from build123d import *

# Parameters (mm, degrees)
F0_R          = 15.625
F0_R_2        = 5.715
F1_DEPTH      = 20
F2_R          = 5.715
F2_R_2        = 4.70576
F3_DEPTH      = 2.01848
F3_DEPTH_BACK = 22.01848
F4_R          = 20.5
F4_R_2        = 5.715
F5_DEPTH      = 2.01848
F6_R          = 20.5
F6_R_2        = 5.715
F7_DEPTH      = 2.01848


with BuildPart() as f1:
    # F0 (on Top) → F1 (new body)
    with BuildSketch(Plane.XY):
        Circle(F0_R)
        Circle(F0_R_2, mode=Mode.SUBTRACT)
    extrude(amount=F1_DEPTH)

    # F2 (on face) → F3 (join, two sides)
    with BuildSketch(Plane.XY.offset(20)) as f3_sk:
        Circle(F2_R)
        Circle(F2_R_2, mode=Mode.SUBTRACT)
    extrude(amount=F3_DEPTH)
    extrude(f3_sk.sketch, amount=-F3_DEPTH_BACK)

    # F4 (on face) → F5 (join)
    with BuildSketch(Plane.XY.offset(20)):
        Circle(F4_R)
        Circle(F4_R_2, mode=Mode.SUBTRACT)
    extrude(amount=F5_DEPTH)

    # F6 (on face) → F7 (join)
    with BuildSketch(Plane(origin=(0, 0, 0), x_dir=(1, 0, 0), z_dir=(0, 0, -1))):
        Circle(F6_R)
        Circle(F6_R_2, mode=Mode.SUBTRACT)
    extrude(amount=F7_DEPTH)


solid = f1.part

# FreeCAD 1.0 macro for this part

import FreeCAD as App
import Part
import Sketcher

doc = App.newDocument("Part")
body = doc.addObject("PartDesign::Body", "Body")

# Sketch on XY plane
sketch1 = body.newObject("Sketcher::SketchObject", "Sketch")
sketch1.AttachmentSupport = (doc.getObject("XY_Plane"), [""])
sketch1.MapMode = "FlatFace"
sketch1.addGeometry(Part.Circle(App.Vector(0, 0, 0), App.Vector(0, 0, 1), 15.625), False)
sketch1.addGeometry(Part.Circle(App.Vector(0, 0, 0), App.Vector(0, 0, 1), 5.715), False)
sketch1.addConstraint(Sketcher.Constraint("Coincident", 0, 3, -1, 1))
sketch1.addConstraint(Sketcher.Constraint("Coincident", 1, 3, -1, 1))
sketch1.addConstraint(Sketcher.Constraint("Diameter", 0, 31.25))
sketch1.addConstraint(Sketcher.Constraint("Diameter", 1, 11.43))
pad1 = body.newObject("PartDesign::Pad", "Pad")
pad1.Profile = sketch1
pad1.Length = 20

# Sketch on XY plane
sketch2 = body.newObject("Sketcher::SketchObject", "Sketch001")
sketch2.AttachmentSupport = (doc.getObject("XY_Plane"), [""])
sketch2.MapMode = "FlatFace"
sketch2.AttachmentOffset = App.Placement(App.Vector(0, 0, 20), App.Rotation())
sketch2.addGeometry(Part.Circle(App.Vector(0, 0, 0), App.Vector(0, 0, 1), 5.715), False)
sketch2.addGeometry(Part.Circle(App.Vector(0, 0, 0), App.Vector(0, 0, 1), 4.70576), False)
sketch2.addConstraint(Sketcher.Constraint("Coincident", 0, 3, -1, 1))
sketch2.addConstraint(Sketcher.Constraint("Coincident", 1, 3, -1, 1))
sketch2.addConstraint(Sketcher.Constraint("Diameter", 0, 11.43))
sketch2.addConstraint(Sketcher.Constraint("Diameter", 1, 9.41152))
pad2 = body.newObject("PartDesign::Pad", "Pad001")
pad2.Profile = sketch2
pad2.Type = "TwoLengths"
pad2.Length = 2.01848
pad2.Length2 = 22.01848

# Sketch on XY plane
sketch3 = body.newObject("Sketcher::SketchObject", "Sketch002")
sketch3.AttachmentSupport = (doc.getObject("XY_Plane"), [""])
sketch3.MapMode = "FlatFace"
sketch3.AttachmentOffset = App.Placement(App.Vector(0, 0, 20), App.Rotation())
sketch3.addGeometry(Part.Circle(App.Vector(0, 0, 0), App.Vector(0, 0, 1), 20.5), False)
sketch3.addGeometry(Part.Circle(App.Vector(0, 0, 0), App.Vector(0, 0, 1), 5.715), False)
sketch3.addConstraint(Sketcher.Constraint("Coincident", 0, 3, -1, 1))
sketch3.addConstraint(Sketcher.Constraint("Coincident", 1, 3, -1, 1))
sketch3.addConstraint(Sketcher.Constraint("Diameter", 0, 41.0))
sketch3.addConstraint(Sketcher.Constraint("Diameter", 1, 11.43))
pad3 = body.newObject("PartDesign::Pad", "Pad002")
pad3.Profile = sketch3
pad3.Length = 2.01848

# Sketch on XY plane
sketch4 = body.newObject("Sketcher::SketchObject", "Sketch003")
sketch4.AttachmentSupport = (doc.getObject("XY_Plane"), [""])
sketch4.MapMode = "FlatFace"
sketch4.addGeometry(Part.Circle(App.Vector(0, 0, 0), App.Vector(0, 0, 1), 20.5), False)
sketch4.addGeometry(Part.Circle(App.Vector(0, 0, 0), App.Vector(0, 0, 1), 5.715), False)
sketch4.addConstraint(Sketcher.Constraint("Coincident", 0, 3, -1, 1))
sketch4.addConstraint(Sketcher.Constraint("Coincident", 1, 3, -1, 1))
sketch4.addConstraint(Sketcher.Constraint("Diameter", 0, 41.0))
sketch4.addConstraint(Sketcher.Constraint("Diameter", 1, 11.43))
pad4 = body.newObject("PartDesign::Pad", "Pad003")
pad4.Profile = sketch4
pad4.Length = 2.01848
pad4.Reversed = True

doc.recompute()
